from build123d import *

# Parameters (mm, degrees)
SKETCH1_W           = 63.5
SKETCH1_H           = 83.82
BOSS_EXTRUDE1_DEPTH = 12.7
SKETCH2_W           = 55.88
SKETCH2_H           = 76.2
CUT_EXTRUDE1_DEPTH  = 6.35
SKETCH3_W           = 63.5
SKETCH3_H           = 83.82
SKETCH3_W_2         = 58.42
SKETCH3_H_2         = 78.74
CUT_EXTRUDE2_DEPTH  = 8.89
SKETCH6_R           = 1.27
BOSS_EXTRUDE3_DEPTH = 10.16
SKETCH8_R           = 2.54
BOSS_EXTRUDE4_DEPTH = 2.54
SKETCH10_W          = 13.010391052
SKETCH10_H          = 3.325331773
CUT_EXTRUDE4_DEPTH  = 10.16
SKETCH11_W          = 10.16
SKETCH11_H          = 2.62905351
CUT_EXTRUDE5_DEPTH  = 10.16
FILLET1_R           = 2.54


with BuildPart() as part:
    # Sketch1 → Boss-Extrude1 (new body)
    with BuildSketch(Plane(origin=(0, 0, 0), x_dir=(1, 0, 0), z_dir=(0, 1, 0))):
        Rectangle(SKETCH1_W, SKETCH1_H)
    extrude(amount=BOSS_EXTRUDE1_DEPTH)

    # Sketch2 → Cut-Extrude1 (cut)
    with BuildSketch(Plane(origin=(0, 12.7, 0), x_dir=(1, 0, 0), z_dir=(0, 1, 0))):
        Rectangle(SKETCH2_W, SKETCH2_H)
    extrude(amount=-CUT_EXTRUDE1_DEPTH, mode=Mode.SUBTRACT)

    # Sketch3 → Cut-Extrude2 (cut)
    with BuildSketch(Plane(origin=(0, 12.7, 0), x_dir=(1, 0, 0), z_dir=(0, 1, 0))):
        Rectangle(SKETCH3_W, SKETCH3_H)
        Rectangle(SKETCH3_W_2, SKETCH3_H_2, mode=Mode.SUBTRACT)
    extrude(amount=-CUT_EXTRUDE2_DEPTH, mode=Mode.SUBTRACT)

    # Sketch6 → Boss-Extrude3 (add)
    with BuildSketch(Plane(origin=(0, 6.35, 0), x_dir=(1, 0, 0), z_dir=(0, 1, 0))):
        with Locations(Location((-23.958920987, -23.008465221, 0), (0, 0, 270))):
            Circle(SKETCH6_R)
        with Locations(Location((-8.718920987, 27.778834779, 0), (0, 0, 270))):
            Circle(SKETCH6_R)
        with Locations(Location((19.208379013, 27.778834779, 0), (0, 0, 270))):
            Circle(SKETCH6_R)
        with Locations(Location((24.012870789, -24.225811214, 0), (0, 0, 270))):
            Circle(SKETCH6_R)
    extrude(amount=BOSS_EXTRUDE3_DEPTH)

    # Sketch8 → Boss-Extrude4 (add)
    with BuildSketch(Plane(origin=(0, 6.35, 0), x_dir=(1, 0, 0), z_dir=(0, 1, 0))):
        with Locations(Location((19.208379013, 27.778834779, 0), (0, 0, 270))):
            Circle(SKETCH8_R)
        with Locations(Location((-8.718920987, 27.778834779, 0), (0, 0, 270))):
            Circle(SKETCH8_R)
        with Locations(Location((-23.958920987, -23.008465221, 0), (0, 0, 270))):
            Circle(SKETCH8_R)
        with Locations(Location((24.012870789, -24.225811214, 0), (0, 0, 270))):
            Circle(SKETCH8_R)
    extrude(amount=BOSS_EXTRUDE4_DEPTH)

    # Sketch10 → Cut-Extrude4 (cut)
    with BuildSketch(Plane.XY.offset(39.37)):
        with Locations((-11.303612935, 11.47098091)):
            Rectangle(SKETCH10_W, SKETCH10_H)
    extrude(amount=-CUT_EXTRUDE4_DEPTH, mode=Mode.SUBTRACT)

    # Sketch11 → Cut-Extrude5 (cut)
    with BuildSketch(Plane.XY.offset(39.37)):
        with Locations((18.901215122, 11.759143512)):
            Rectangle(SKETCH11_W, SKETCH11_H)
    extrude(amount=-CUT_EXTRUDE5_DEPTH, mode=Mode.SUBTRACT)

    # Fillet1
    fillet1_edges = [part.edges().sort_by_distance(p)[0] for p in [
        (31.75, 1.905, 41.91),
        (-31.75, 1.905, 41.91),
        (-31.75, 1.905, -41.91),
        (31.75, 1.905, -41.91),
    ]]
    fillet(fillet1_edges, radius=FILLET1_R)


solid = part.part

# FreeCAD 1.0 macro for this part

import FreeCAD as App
import Part
import Sketcher
from FreeCAD import Vector
Q = App.Units.Quantity


def edges_at(feature, points):
    """Names of the edges that pass closest to the given points."""
    edges = feature.Shape.Edges
    near = lambda p: min(range(len(edges)), key=lambda i: edges[i].distToShape(Part.Vertex(*p))[0])
    return sorted({f"Edge{near(p) + 1}" for p in points})

doc = App.newDocument("Part")
body = doc.addObject("PartDesign::Body", "Body")

sketch1 = body.newObject("Sketcher::SketchObject", "Sketch")
sketch1.AttachmentSupport = (doc.getObject("XZ_Plane"), [""])
sketch1.MapMode = "FlatFace"
sketch1.addGeometry([
    Part.LineSegment(Vector(-32, -42, 0), Vector(-32, 42, 0)),
    Part.LineSegment(Vector(-32, 42, 0), Vector(32, 42, 0)),
    Part.LineSegment(Vector(32, 42, 0), Vector(32, -42, 0)),
    Part.LineSegment(Vector(32, -42, 0), Vector(-32, -42, 0)),
], False)
sketch1.addConstraint([
    Sketcher.Constraint("Coincident", 0, 2, 1, 1),
    Sketcher.Constraint("Coincident", 1, 2, 2, 1),
    Sketcher.Constraint("Coincident", 2, 2, 3, 1),
    Sketcher.Constraint("Coincident", 3, 2, 0, 1),
    Sketcher.Constraint("Vertical", 0),
    Sketcher.Constraint("Horizontal", 1),
    Sketcher.Constraint("Vertical", 2),
    Sketcher.Constraint("Horizontal", 3),
    Sketcher.Constraint("Symmetric", 0, 2, 2, 2, -1, 1),
    Sketcher.Constraint("DistanceX", 1, 1, 1, 2, Q("2.5 in")),
    Sketcher.Constraint("DistanceY", 0, 1, 0, 2, Q("3.3 in")),
])
pad1 = body.newObject("PartDesign::Pad", "Pad")
pad1.Profile = sketch1
pad1.Length = Q("0.5 in")
pad1.Reversed = True

sketch2 = body.newObject("Sketcher::SketchObject", "Sketch001")
sketch2.AttachmentSupport = (doc.getObject("XZ_Plane"), [""])
sketch2.MapMode = "FlatFace"
sketch2.AttachmentOffset = App.Placement(Vector(0, 0, -0.5 * 25.4), App.Rotation())
sketch2.addGeometry([
    Part.LineSegment(Vector(-28, -38, 0), Vector(-28, 38, 0)),
    Part.LineSegment(Vector(-28, 38, 0), Vector(28, 38, 0)),
    Part.LineSegment(Vector(28, 38, 0), Vector(28, -38, 0)),
    Part.LineSegment(Vector(28, -38, 0), Vector(-28, -38, 0)),
], False)
sketch2.addConstraint([
    Sketcher.Constraint("Coincident", 0, 2, 1, 1),
    Sketcher.Constraint("Coincident", 1, 2, 2, 1),
    Sketcher.Constraint("Coincident", 2, 2, 3, 1),
    Sketcher.Constraint("Coincident", 3, 2, 0, 1),
    Sketcher.Constraint("Vertical", 0),
    Sketcher.Constraint("Horizontal", 1),
    Sketcher.Constraint("Vertical", 2),
    Sketcher.Constraint("Horizontal", 3),
    Sketcher.Constraint("Symmetric", 0, 2, 2, 2, -1, 1),
    Sketcher.Constraint("DistanceY", 0, 1, 0, 2, Q("3 in")),
    Sketcher.Constraint("DistanceX", 1, 1, 1, 2, Q("2.2 in")),
])
pocket1 = body.newObject("PartDesign::Pocket", "Pocket")
pocket1.Profile = sketch2
pocket1.Length = Q("0.25 in")
pocket1.Reversed = True

sketch3 = body.newObject("Sketcher::SketchObject", "Sketch002")
sketch3.AttachmentSupport = (doc.getObject("XZ_Plane"), [""])
sketch3.MapMode = "FlatFace"
sketch3.AttachmentOffset = App.Placement(Vector(0, 0, -0.5 * 25.4), App.Rotation())
sketch3.addGeometry([
    Part.LineSegment(Vector(-32, -42, 0), Vector(-32, 42, 0)),
    Part.LineSegment(Vector(-32, 42, 0), Vector(32, 42, 0)),
    Part.LineSegment(Vector(32, 42, 0), Vector(32, -42, 0)),
    Part.LineSegment(Vector(32, -42, 0), Vector(-32, -42, 0)),
    Part.LineSegment(Vector(29, 39, 0), Vector(-29, 39, 0)),
    Part.LineSegment(Vector(-29, 39, 0), Vector(-29, -39, 0)),
    Part.LineSegment(Vector(-29, -39, 0), Vector(29, -39, 0)),
    Part.LineSegment(Vector(29, -39, 0), Vector(29, 39, 0)),
], False)
sketch3.addConstraint([
    Sketcher.Constraint("Coincident", 0, 2, 1, 1),
    Sketcher.Constraint("Coincident", 1, 2, 2, 1),
    Sketcher.Constraint("Coincident", 2, 2, 3, 1),
    Sketcher.Constraint("Coincident", 3, 2, 0, 1),
    Sketcher.Constraint("Coincident", 4, 2, 5, 1),
    Sketcher.Constraint("Coincident", 5, 2, 6, 1),
    Sketcher.Constraint("Coincident", 6, 2, 7, 1),
    Sketcher.Constraint("Coincident", 7, 2, 4, 1),
    Sketcher.Constraint("Vertical", 0),
    Sketcher.Constraint("Horizontal", 1),
    Sketcher.Constraint("Vertical", 2),
    Sketcher.Constraint("Horizontal", 3),
    Sketcher.Constraint("Horizontal", 4),
    Sketcher.Constraint("Vertical", 5),
    Sketcher.Constraint("Horizontal", 6),
    Sketcher.Constraint("Vertical", 7),
    Sketcher.Constraint("Symmetric", 0, 2, 2, 2, -1, 1),
    Sketcher.Constraint("Symmetric", 4, 2, 6, 2, -1, 1),
    Sketcher.Constraint("DistanceX", 1, 1, 1, 2, Q("2.5 in")),
    Sketcher.Constraint("DistanceX", 4, 2, 4, 1, Q("2.3 in")),
    Sketcher.Constraint("DistanceY", 0, 1, 0, 2, Q("3.3 in")),
    Sketcher.Constraint("DistanceY", 5, 2, 5, 1, Q("3.1 in")),
])
pocket2 = body.newObject("PartDesign::Pocket", "Pocket001")
pocket2.Profile = sketch3
pocket2.Length = Q("0.35 in")
pocket2.Reversed = True

sketch4 = body.newObject("Sketcher::SketchObject", "Sketch003")
sketch4.AttachmentSupport = (doc.getObject("XZ_Plane"), [""])
sketch4.MapMode = "FlatFace"
sketch4.AttachmentOffset = App.Placement(Vector(0, 0, -0.25 * 25.4), App.Rotation())
sketch4.addGeometry([
    Part.Circle(Vector(-24, 23, 0), Vector(0, 0, 1), 1.3),
    Part.Circle(Vector(-8.7, -27.8, 0), Vector(0, 0, 1), 1.3),
    Part.Circle(Vector(19.2, -27.8, 0), Vector(0, 0, 1), 1.3),
    Part.Circle(Vector(24, 24.2, 0), Vector(0, 0, 1), 1.3),
], False)
sketch4.addConstraint([
    Sketcher.Constraint("Equal", 0, 1),
    Sketcher.Constraint("Equal", 1, 2),
    Sketcher.Constraint("Equal", 2, 3),
    Sketcher.Constraint("Horizontal", 1, 3, 2, 3),
    Sketcher.Constraint("Diameter", 0, Q("0.1 in")),
    Sketcher.Constraint("DistanceX", 0, 3, 1, 3, Q("0.6 in")),
    Sketcher.Constraint("DistanceY", 1, 3, 0, 3, Q("1.9995 in")),
    Sketcher.Constraint("DistanceX", 1, 3, 2, 3, Q("1.0995 in")),
    Sketcher.Constraint("DistanceX", 0, 3, -1, 1, 23.958921),
    Sketcher.Constraint("DistanceX", -1, 1, 3, 3, 24.012871),
    Sketcher.Constraint("DistanceY", -1, 1, 3, 3, 24.225811),
    Sketcher.Constraint("DistanceY", -1, 1, 0, 3, 23.008465),
])
pad2 = body.newObject("PartDesign::Pad", "Pad001")
pad2.Profile = sketch4
pad2.Length = Q("0.4 in")
pad2.Reversed = True

sketch5 = body.newObject("Sketcher::SketchObject", "Sketch004")
sketch5.AttachmentSupport = (doc.getObject("XZ_Plane"), [""])
sketch5.MapMode = "FlatFace"
sketch5.AttachmentOffset = App.Placement(Vector(0, 0, -0.25 * 25.4), App.Rotation())
sketch5.addGeometry([
    Part.Circle(Vector(19.2, -27.8, 0), Vector(0, 0, 1), 2.5),
    Part.Circle(Vector(-8.7, -27.8, 0), Vector(0, 0, 1), 2.5),
    Part.Circle(Vector(-24, 23, 0), Vector(0, 0, 1), 2.5),
    Part.Circle(Vector(24, 24.2, 0), Vector(0, 0, 1), 2.5),
], False)
sketch5.addConstraint([
    Sketcher.Constraint("Equal", 0, 1),
    Sketcher.Constraint("Equal", 1, 2),
    Sketcher.Constraint("Equal", 2, 3),
    Sketcher.Constraint("Horizontal", 0, 3, 1, 3),
    Sketcher.Constraint("Diameter", 0, Q("0.2 in")),
    Sketcher.Constraint("DistanceX", 2, 3, 1, 3, Q("0.6 in")),
    Sketcher.Constraint("DistanceX", 1, 3, 0, 3, Q("1.0995 in")),
    Sketcher.Constraint("DistanceY", 1, 3, 2, 3, Q("1.9995 in")),
    Sketcher.Constraint("DistanceX", -1, 1, 0, 3, 19.208379),
    Sketcher.Constraint("DistanceX", -1, 1, 3, 3, 24.012871),
    Sketcher.Constraint("DistanceY", -1, 1, 3, 3, 24.225811),
    Sketcher.Constraint("DistanceY", 0, 3, -1, 1, 27.778835),
])
pad3 = body.newObject("PartDesign::Pad", "Pad002")
pad3.Profile = sketch5
pad3.Length = Q("0.1 in")
pad3.Reversed = True

sketch6 = body.newObject("Sketcher::SketchObject", "Sketch005")
sketch6.AttachmentSupport = (doc.getObject("XY_Plane"), [""])
sketch6.MapMode = "FlatFace"
sketch6.AttachmentOffset = App.Placement(Vector(0, 0, 1.55 * 25.4), App.Rotation())
sketch6.addGeometry([
    Part.LineSegment(Vector(-17.8, 13.1, 0), Vector(-17.8, 9.8, 0)),
    Part.LineSegment(Vector(-17.8, 9.8, 0), Vector(-4.8, 9.8, 0)),
    Part.LineSegment(Vector(-4.8, 9.8, 0), Vector(-4.8, 13.1, 0)),
    Part.LineSegment(Vector(-4.8, 13.1, 0), Vector(-17.8, 13.1, 0)),
], False)
sketch6.addConstraint([
    Sketcher.Constraint("Coincident", 0, 2, 1, 1),
    Sketcher.Constraint("Coincident", 1, 2, 2, 1),
    Sketcher.Constraint("Coincident", 2, 2, 3, 1),
    Sketcher.Constraint("Coincident", 3, 2, 0, 1),
    Sketcher.Constraint("Vertical", 0),
    Sketcher.Constraint("Horizontal", 1),
    Sketcher.Constraint("Vertical", 2),
    Sketcher.Constraint("Horizontal", 3),
    Sketcher.Constraint("DistanceX", 1, 1, 1, 2, 13.010391),
    Sketcher.Constraint("DistanceY", 0, 2, 0, 1, 3.325332),
    Sketcher.Constraint("DistanceX", 0, 2, -1, 1, 17.808808),
    Sketcher.Constraint("DistanceY", -1, 1, 0, 2, 9.808315),
])
pocket3 = body.newObject("PartDesign::Pocket", "Pocket002")
pocket3.Profile = sketch6
pocket3.Length = Q("0.4 in")

sketch7 = body.newObject("Sketcher::SketchObject", "Sketch006")
sketch7.AttachmentSupport = (doc.getObject("XY_Plane"), [""])
sketch7.MapMode = "FlatFace"
sketch7.AttachmentOffset = App.Placement(Vector(0, 0, 1.55 * 25.4), App.Rotation())
sketch7.addGeometry([
    Part.LineSegment(Vector(13.8, 13.1, 0), Vector(13.8, 10.4, 0)),
    Part.LineSegment(Vector(13.8, 10.4, 0), Vector(24, 10.4, 0)),
    Part.LineSegment(Vector(24, 10.4, 0), Vector(24, 13.1, 0)),
    Part.LineSegment(Vector(24, 13.1, 0), Vector(13.8, 13.1, 0)),
], False)
sketch7.addConstraint([
    Sketcher.Constraint("Coincident", 0, 2, 1, 1),
    Sketcher.Constraint("Coincident", 1, 2, 2, 1),
    Sketcher.Constraint("Coincident", 2, 2, 3, 1),
    Sketcher.Constraint("Coincident", 3, 2, 0, 1),
    Sketcher.Constraint("Vertical", 0),
    Sketcher.Constraint("Horizontal", 1),
    Sketcher.Constraint("Vertical", 2),
    Sketcher.Constraint("Horizontal", 3),
    Sketcher.Constraint("DistanceX", 1, 1, 1, 2, Q("0.4 in")),
    Sketcher.Constraint("DistanceY", 0, 2, 0, 1, 2.629054),
    Sketcher.Constraint("DistanceY", -1, 1, 2, 2, 13.07367),
    Sketcher.Constraint("DistanceX", -1, 1, 0, 2, 13.821215),
])
pocket4 = body.newObject("PartDesign::Pocket", "Pocket003")
pocket4.Profile = sketch7
pocket4.Length = Q("0.4 in")
doc.recompute()

fillet = body.newObject("PartDesign::Fillet", "Fillet")
fillet.Base = (pocket4, edges_at(pocket4, [
    (31.75, 1.905, 41.91),
    (-31.75, 1.905, 41.91),
    (-31.75, 1.905, -41.91),
    (31.75, 1.905, -41.91),
]))
fillet.Radius = Q("0.1 in")

doc.recompute()
